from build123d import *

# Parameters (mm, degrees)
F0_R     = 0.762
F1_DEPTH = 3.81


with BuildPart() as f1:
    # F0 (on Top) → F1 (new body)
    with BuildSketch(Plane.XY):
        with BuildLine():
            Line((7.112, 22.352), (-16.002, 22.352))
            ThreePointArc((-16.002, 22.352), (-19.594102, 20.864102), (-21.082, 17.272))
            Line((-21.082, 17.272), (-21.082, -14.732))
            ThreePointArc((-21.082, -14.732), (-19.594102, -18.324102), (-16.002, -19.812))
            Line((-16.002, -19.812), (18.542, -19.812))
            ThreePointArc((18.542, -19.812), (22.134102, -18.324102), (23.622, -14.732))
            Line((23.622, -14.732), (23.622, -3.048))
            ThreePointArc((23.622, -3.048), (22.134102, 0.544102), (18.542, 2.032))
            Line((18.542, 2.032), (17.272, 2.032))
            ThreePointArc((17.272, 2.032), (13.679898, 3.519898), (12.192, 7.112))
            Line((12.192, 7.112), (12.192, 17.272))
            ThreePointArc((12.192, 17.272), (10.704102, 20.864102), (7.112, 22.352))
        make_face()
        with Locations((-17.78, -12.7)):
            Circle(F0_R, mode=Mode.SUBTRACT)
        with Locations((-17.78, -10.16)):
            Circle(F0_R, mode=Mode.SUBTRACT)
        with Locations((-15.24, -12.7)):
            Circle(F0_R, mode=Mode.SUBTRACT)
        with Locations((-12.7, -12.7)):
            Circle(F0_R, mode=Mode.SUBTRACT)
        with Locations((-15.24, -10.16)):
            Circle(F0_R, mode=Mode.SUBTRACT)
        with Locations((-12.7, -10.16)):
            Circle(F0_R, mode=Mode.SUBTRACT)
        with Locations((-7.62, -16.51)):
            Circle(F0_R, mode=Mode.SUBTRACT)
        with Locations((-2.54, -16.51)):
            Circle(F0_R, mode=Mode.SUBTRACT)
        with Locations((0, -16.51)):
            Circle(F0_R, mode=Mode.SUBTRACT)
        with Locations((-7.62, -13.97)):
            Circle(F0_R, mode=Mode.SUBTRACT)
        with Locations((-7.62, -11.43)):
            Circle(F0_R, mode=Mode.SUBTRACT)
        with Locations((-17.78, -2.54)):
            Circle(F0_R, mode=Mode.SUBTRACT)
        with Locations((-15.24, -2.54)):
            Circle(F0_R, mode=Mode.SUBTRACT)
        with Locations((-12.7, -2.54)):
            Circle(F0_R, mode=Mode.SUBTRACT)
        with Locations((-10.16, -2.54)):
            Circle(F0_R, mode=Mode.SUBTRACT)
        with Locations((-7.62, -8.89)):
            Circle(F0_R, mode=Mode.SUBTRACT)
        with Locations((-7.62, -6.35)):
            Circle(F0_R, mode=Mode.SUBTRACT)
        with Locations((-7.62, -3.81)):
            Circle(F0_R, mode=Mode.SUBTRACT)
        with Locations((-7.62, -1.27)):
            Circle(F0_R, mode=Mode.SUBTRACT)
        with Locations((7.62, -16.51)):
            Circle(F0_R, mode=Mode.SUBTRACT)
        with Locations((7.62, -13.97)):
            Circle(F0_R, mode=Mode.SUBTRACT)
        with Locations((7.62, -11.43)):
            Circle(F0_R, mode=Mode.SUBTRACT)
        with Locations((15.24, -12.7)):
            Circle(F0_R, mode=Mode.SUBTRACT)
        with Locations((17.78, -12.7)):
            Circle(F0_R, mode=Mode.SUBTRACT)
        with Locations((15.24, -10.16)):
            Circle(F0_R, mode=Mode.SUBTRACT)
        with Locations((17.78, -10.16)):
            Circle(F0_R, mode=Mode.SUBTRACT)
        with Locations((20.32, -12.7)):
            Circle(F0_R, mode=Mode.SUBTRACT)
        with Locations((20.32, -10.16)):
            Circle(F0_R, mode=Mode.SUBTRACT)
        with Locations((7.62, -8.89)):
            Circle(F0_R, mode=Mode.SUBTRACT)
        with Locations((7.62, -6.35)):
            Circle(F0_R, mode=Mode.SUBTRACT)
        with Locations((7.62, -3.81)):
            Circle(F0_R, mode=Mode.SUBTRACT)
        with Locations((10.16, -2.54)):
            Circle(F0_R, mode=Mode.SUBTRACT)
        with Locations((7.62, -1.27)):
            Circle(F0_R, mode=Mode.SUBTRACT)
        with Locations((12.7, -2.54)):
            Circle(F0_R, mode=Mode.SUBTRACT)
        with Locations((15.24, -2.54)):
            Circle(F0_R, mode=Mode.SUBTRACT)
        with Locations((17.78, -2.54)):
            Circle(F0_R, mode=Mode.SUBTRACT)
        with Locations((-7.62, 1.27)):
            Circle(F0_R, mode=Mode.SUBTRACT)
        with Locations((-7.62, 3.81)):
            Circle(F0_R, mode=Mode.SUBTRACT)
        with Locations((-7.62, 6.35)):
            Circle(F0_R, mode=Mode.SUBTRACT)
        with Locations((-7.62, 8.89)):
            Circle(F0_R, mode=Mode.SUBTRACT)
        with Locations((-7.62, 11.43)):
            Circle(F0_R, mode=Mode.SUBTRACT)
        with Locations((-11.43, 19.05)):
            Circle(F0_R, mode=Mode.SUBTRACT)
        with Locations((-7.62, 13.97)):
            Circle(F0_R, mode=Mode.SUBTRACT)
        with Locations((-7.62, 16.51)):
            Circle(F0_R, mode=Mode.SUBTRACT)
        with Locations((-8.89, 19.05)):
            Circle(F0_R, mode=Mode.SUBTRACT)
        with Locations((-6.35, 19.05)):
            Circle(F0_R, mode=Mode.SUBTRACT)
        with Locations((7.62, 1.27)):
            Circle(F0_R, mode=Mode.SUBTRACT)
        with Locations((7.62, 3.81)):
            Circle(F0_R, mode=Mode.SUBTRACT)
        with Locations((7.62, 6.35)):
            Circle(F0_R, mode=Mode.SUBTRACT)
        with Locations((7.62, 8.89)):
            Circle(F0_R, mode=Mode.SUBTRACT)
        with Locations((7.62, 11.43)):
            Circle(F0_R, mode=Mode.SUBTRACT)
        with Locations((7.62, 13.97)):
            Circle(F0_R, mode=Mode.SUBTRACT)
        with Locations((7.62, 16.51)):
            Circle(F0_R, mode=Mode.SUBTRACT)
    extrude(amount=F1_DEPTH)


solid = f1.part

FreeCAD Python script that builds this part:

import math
import FreeCAD as App
import Part
import Sketcher
Q = App.Units.Quantity

doc = App.newDocument("Part")
body = doc.addObject("PartDesign::Body", "Body")

# Sketch on XY plane
sketch1 = body.newObject("Sketcher::SketchObject", "Sketch")
sketch1.AttachmentSupport = (doc.getObject("XY_Plane"), [""])
sketch1.MapMode = "FlatFace"
sketch1.addGeometry([
    Part.LineSegment(App.Vector(7.1, 22.4, 0), App.Vector(-16, 22.4, 0)),  # 0
    Part.ArcOfCircle(Part.Circle(App.Vector(-16, 17.3, 0), App.Vector(0, 0, 1), 5.1), math.radians(90), math.radians(180)),  # 1
    Part.LineSegment(App.Vector(-21.1, 17.3, 0), App.Vector(-21.1, -14.7, 0)),  # 2
    Part.ArcOfCircle(Part.Circle(App.Vector(-16, -14.7, 0), App.Vector(0, 0, 1), 5.1), math.radians(-180), math.radians(-90)),  # 3
    Part.LineSegment(App.Vector(-16, -19.8, 0), App.Vector(18.5, -19.8, 0)),  # 4
    Part.ArcOfCircle(Part.Circle(App.Vector(18.5, -14.7, 0), App.Vector(0, 0, 1), 5.1), math.radians(-90), math.radians(0)),  # 5
    Part.LineSegment(App.Vector(23.6, -14.7, 0), App.Vector(23.6, -3, 0)),  # 6
    Part.ArcOfCircle(Part.Circle(App.Vector(18.5, -3, 0), App.Vector(0, 0, 1), 5.1), math.radians(0), math.radians(90)),  # 7
    Part.LineSegment(App.Vector(18.5, 2, 0), App.Vector(17.3, 2, 0)),  # 8
    Part.ArcOfCircle(Part.Circle(App.Vector(17.3, 7.1, 0), App.Vector(0, 0, 1), 5.1), math.radians(-180), math.radians(-90)),  # 9
    Part.LineSegment(App.Vector(12.2, 7.1, 0), App.Vector(12.2, 17.3, 0)),  # 10
    Part.ArcOfCircle(Part.Circle(App.Vector(7.1, 17.3, 0), App.Vector(0, 0, 1), 5.1), math.radians(0), math.radians(90)),  # 11
    Part.Circle(App.Vector(-17.8, -12.7, 0), App.Vector(0, 0, 1), 0.8),  # 12
    Part.Circle(App.Vector(-15.2, -12.7, 0), App.Vector(0, 0, 1), 0.8),  # 13
    Part.Circle(App.Vector(-12.7, -12.7, 0), App.Vector(0, 0, 1), 0.8),  # 14
    Part.Circle(App.Vector(-17.8, -10.2, 0), App.Vector(0, 0, 1), 0.8),  # 15
    Part.Circle(App.Vector(-15.2, -10.2, 0), App.Vector(0, 0, 1), 0.8),  # 16
    Part.Circle(App.Vector(-12.7, -10.2, 0), App.Vector(0, 0, 1), 0.8),  # 17
    Part.Circle(App.Vector(-7.6, -16.5, 0), App.Vector(0, 0, 1), 0.8),  # 18
    Part.Circle(App.Vector(-7.6, -14, 0), App.Vector(0, 0, 1), 0.8),  # 19
    Part.Circle(App.Vector(-2.5, -16.5, 0), App.Vector(0, 0, 1), 0.8),  # 20
    Part.Circle(App.Vector(0, -16.5, 0), App.Vector(0, 0, 1), 0.8),  # 21
    Part.Circle(App.Vector(-7.6, -11.4, 0), App.Vector(0, 0, 1), 0.8),  # 22
    Part.Circle(App.Vector(-7.6, -8.9, 0), App.Vector(0, 0, 1), 0.8),  # 23
    Part.Circle(App.Vector(-17.8, -2.5, 0), App.Vector(0, 0, 1), 0.8),  # 24
    Part.Circle(App.Vector(-15.2, -2.5, 0), App.Vector(0, 0, 1), 0.8),  # 25
    Part.Circle(App.Vector(-12.7, -2.5, 0), App.Vector(0, 0, 1), 0.8),  # 26
    Part.Circle(App.Vector(-10.2, -2.5, 0), App.Vector(0, 0, 1), 0.8),  # 27
    Part.Circle(App.Vector(-7.6, -6.3, 0), App.Vector(0, 0, 1), 0.8),  # 28
    Part.Circle(App.Vector(-7.6, -3.8, 0), App.Vector(0, 0, 1), 0.8),  # 29
    Part.Circle(App.Vector(-7.6, -1.3, 0), App.Vector(0, 0, 1), 0.8),  # 30
    Part.Circle(App.Vector(7.6, -16.5, 0), App.Vector(0, 0, 1), 0.8),  # 31
    Part.Circle(App.Vector(7.6, -14, 0), App.Vector(0, 0, 1), 0.8),  # 32
    Part.Circle(App.Vector(7.6, -11.4, 0), App.Vector(0, 0, 1), 0.8),  # 33
    Part.Circle(App.Vector(7.6, -8.9, 0), App.Vector(0, 0, 1), 0.8),  # 34
    Part.Circle(App.Vector(15.2, -12.7, 0), App.Vector(0, 0, 1), 0.8),  # 35
    Part.Circle(App.Vector(17.8, -12.7, 0), App.Vector(0, 0, 1), 0.8),  # 36
    Part.Circle(App.Vector(20.3, -12.7, 0), App.Vector(0, 0, 1), 0.8),  # 37
    Part.Circle(App.Vector(15.2, -10.2, 0), App.Vector(0, 0, 1), 0.8),  # 38
    Part.Circle(App.Vector(17.8, -10.2, 0), App.Vector(0, 0, 1), 0.8),  # 39
    Part.Circle(App.Vector(20.3, -10.2, 0), App.Vector(0, 0, 1), 0.8),  # 40
    Part.Circle(App.Vector(7.6, -6.3, 0), App.Vector(0, 0, 1), 0.8),  # 41
    Part.Circle(App.Vector(7.6, -3.8, 0), App.Vector(0, 0, 1), 0.8),  # 42
    Part.Circle(App.Vector(7.6, -1.3, 0), App.Vector(0, 0, 1), 0.8),  # 43
    Part.Circle(App.Vector(10.2, -2.5, 0), App.Vector(0, 0, 1), 0.8),  # 44
    Part.Circle(App.Vector(12.7, -2.5, 0), App.Vector(0, 0, 1), 0.8),  # 45
    Part.Circle(App.Vector(15.2, -2.5, 0), App.Vector(0, 0, 1), 0.8),  # 46
    Part.Circle(App.Vector(17.8, -2.5, 0), App.Vector(0, 0, 1), 0.8),  # 47
    Part.Circle(App.Vector(-7.6, 1.3, 0), App.Vector(0, 0, 1), 0.8),  # 48
    Part.Circle(App.Vector(-7.6, 3.8, 0), App.Vector(0, 0, 1), 0.8),  # 49
    Part.Circle(App.Vector(-7.6, 6.3, 0), App.Vector(0, 0, 1), 0.8),  # 50
    Part.Circle(App.Vector(-7.6, 8.9, 0), App.Vector(0, 0, 1), 0.8),  # 51
    Part.Circle(App.Vector(-11.4, 19.1, 0), App.Vector(0, 0, 1), 0.8),  # 52
    Part.Circle(App.Vector(-8.9, 19.1, 0), App.Vector(0, 0, 1), 0.8),  # 53
    Part.Circle(App.Vector(-7.6, 11.4, 0), App.Vector(0, 0, 1), 0.8),  # 54
    Part.Circle(App.Vector(-7.6, 14, 0), App.Vector(0, 0, 1), 0.8),  # 55
    Part.Circle(App.Vector(-7.6, 16.5, 0), App.Vector(0, 0, 1), 0.8),  # 56
    Part.Circle(App.Vector(-6.3, 19.1, 0), App.Vector(0, 0, 1), 0.8),  # 57
    Part.Circle(App.Vector(7.6, 1.3, 0), App.Vector(0, 0, 1), 0.8),  # 58
    Part.Circle(App.Vector(7.6, 3.8, 0), App.Vector(0, 0, 1), 0.8),  # 59
    Part.Circle(App.Vector(7.6, 6.3, 0), App.Vector(0, 0, 1), 0.8),  # 60
    Part.Circle(App.Vector(7.6, 8.9, 0), App.Vector(0, 0, 1), 0.8),  # 61
    Part.Circle(App.Vector(7.6, 11.4, 0), App.Vector(0, 0, 1), 0.8),  # 62
    Part.Circle(App.Vector(7.6, 14, 0), App.Vector(0, 0, 1), 0.8),  # 63
    Part.Circle(App.Vector(7.6, 16.5, 0), App.Vector(0, 0, 1), 0.8),  # 64
], False)
sketch1.addConstraint([
    Sketcher.Constraint("Tangent", 0, 2, 1, 1),
    Sketcher.Constraint("Tangent", 1, 2, 2, 1),
    Sketcher.Constraint("Tangent", 2, 2, 3, 1),
    Sketcher.Constraint("Tangent", 3, 2, 4, 1),
    Sketcher.Constraint("Tangent", 4, 2, 5, 1),
    Sketcher.Constraint("Tangent", 5, 2, 6, 1),
    Sketcher.Constraint("Tangent", 6, 2, 7, 1),
    Sketcher.Constraint("Tangent", 7, 2, 8, 1),
    Sketcher.Constraint("Tangent", 8, 2, 9, 2),
    Sketcher.Constraint("Tangent", 9, 1, 10, 1),
    Sketcher.Constraint("Tangent", 10, 2, 11, 1),
    Sketcher.Constraint("Tangent", 11, 2, 0, 1),
    Sketcher.Constraint("Horizontal", 0),
    Sketcher.Constraint("Vertical", 2),
    Sketcher.Constraint("Horizontal", 4),
    Sketcher.Constraint("Vertical", 6),
    Sketcher.Constraint("Horizontal", 8),
    Sketcher.Constraint("Vertical", 10),
    Sketcher.Constraint("Equal", 1, 3),
    Sketcher.Constraint("Equal", 3, 5),
    Sketcher.Constraint("Equal", 5, 7),
    Sketcher.Constraint("Equal", 7, 9),
    Sketcher.Constraint("Equal", 9, 11),
    Sketcher.Constraint("Equal", 12, 13),
    Sketcher.Constraint("Equal", 13, 14),
    Sketcher.Constraint("Equal", 14, 15),
    Sketcher.Constraint("Equal", 15, 16),
    Sketcher.Constraint("Equal", 16, 17),
    Sketcher.Constraint("Equal", 17, 18),
    Sketcher.Constraint("Equal", 18, 19),
    Sketcher.Constraint("Equal", 19, 20),
    Sketcher.Constraint("Equal", 20, 21),
    Sketcher.Constraint("Equal", 21, 22),
    Sketcher.Constraint("Equal", 22, 23),
    Sketcher.Constraint("Equal", 23, 24),
    Sketcher.Constraint("Equal", 24, 25),
    Sketcher.Constraint("Equal", 25, 26),
    Sketcher.Constraint("Equal", 26, 27),
    Sketcher.Constraint("Equal", 27, 28),
    Sketcher.Constraint("Equal", 28, 29),
    Sketcher.Constraint("Equal", 29, 30),
    Sketcher.Constraint("Equal", 30, 31),
    Sketcher.Constraint("Equal", 31, 32),
    Sketcher.Constraint("Equal", 32, 33),
    Sketcher.Constraint("Equal", 33, 34),
    Sketcher.Constraint("Equal", 34, 35),
    Sketcher.Constraint("Equal", 35, 36),
    Sketcher.Constraint("Equal", 36, 37),
    Sketcher.Constraint("Equal", 37, 38),
    Sketcher.Constraint("Equal", 38, 39),
    Sketcher.Constraint("Equal", 39, 40),
    Sketcher.Constraint("Equal", 40, 41),
    Sketcher.Constraint("Equal", 41, 42),
    Sketcher.Constraint("Equal", 42, 43),
    Sketcher.Constraint("Equal", 43, 44),
    Sketcher.Constraint("Equal", 44, 45),
    Sketcher.Constraint("Equal", 45, 46),
    Sketcher.Constraint("Equal", 46, 47),
    Sketcher.Constraint("Equal", 47, 48),
    Sketcher.Constraint("Equal", 48, 49),
    Sketcher.Constraint("Equal", 49, 50),
    Sketcher.Constraint("Equal", 50, 51),
    Sketcher.Constraint("Equal", 51, 52),
    Sketcher.Constraint("Equal", 52, 53),
    Sketcher.Constraint("Equal", 53, 54),
    Sketcher.Constraint("Equal", 54, 55),
    Sketcher.Constraint("Equal", 55, 56),
    Sketcher.Constraint("Equal", 56, 57),
    Sketcher.Constraint("Equal", 57, 58),
    Sketcher.Constraint("Equal", 58, 59),
    Sketcher.Constraint("Equal", 59, 60),
    Sketcher.Constraint("Equal", 60, 61),
    Sketcher.Constraint("Equal", 61, 62),
    Sketcher.Constraint("Equal", 62, 63),
    Sketcher.Constraint("Equal", 63, 64),
    Sketcher.Constraint("Symmetric", 43, 3, 48, 3, -1, 1),
    Sketcher.Constraint("Symmetric", 42, 3, 49, 3, -1, 1),
    Sketcher.Constraint("Symmetric", 41, 3, 50, 3, -1, 1),
    Sketcher.Constraint("Symmetric", 34, 3, 51, 3, -1, 1),
    Sketcher.Constraint("Symmetric", 33, 3, 54, 3, -1, 1),
    Sketcher.Constraint("Symmetric", 32, 3, 55, 3, -1, 1),
    Sketcher.Constraint("Symmetric", 31, 3, 56, 3, -1, 1),
    Sketcher.Constraint("Symmetric", 30, 3, 58, 3, -1, 1),
    Sketcher.Constraint("Symmetric", 29, 3, 59, 3, -1, 1),
    Sketcher.Constraint("Symmetric", 28, 3, 60, 3, -1, 1),
    Sketcher.Constraint("Symmetric", 23, 3, 61, 3, -1, 1),
    Sketcher.Constraint("Symmetric", 22, 3, 62, 3, -1, 1),
    Sketcher.Constraint("Symmetric", 19, 3, 63, 3, -1, 1),
    Sketcher.Constraint("Symmetric", 18, 3, 64, 3, -1, 1),
    Sketcher.Constraint("Symmetric", 18, 3, 31, 3, -2),
    Sketcher.Constraint("Symmetric", 19, 3, 32, 3, -2),
    Sketcher.Constraint("Symmetric", 22, 3, 33, 3, -2),
    Sketcher.Constraint("Symmetric", 23, 3, 34, 3, -2),
    Sketcher.Constraint("Symmetric", 13, 3, 35, 3, -2),
    Sketcher.Constraint("Symmetric", 12, 3, 36, 3, -2),
    Sketcher.Constraint("Symmetric", 16, 3, 38, 3, -2),
    Sketcher.Constraint("Symmetric", 15, 3, 39, 3, -2),
    Sketcher.Constraint("Symmetric", 28, 3, 41, 3, -2),
    Sketcher.Constraint("Symmetric", 29, 3, 42, 3, -2),
    Sketcher.Constraint("Symmetric", 30, 3, 43, 3, -2),
    Sketcher.Constraint("Symmetric", 27, 3, 44, 3, -2),
    Sketcher.Constraint("Symmetric", 26, 3, 45, 3, -2),
    Sketcher.Constraint("Symmetric", 25, 3, 46, 3, -2),
    Sketcher.Constraint("Symmetric", 24, 3, 47, 3, -2),
    Sketcher.Constraint("PointOnObject", 21, 3, -2),
    Sketcher.Constraint("Horizontal", 12, 3, 13, 3),
    Sketcher.Constraint("Horizontal", 13, 3, 14, 3),
    Sketcher.Constraint("Horizontal", 15, 3, 16, 3),
    Sketcher.Constraint("Horizontal", 16, 3, 17, 3),
    Sketcher.Constraint("Horizontal", 18, 3, 20, 3),
    Sketcher.Constraint("Horizontal", 20, 3, 21, 3),
    Sketcher.Constraint("Horizontal", 24, 3, 25, 3),
    Sketcher.Constraint("Horizontal", 25, 3, 26, 3),
    Sketcher.Constraint("Horizontal", 26, 3, 27, 3),
    Sketcher.Constraint("Horizontal", 36, 3, 37, 3),
    Sketcher.Constraint("Horizontal", 39, 3, 40, 3),
    Sketcher.Constraint("Horizontal", 52, 3, 53, 3),
    Sketcher.Constraint("Horizontal", 53, 3, 57, 3),
    Sketcher.Constraint("Vertical", 12, 3, 15, 3),
    Sketcher.Constraint("Vertical", 13, 3, 16, 3),
    Sketcher.Constraint("Vertical", 14, 3, 17, 3),
    Sketcher.Constraint("Vertical", 18, 3, 19, 3),
    Sketcher.Constraint("Vertical", 19, 3, 22, 3),
    Sketcher.Constraint("Vertical", 22, 3, 23, 3),
    Sketcher.Constraint("Vertical", 15, 3, 24, 3),
    Sketcher.Constraint("Vertical", 16, 3, 25, 3),
    Sketcher.Constraint("Vertical", 17, 3, 26, 3),
    Sketcher.Constraint("Vertical", 23, 3, 28, 3),
    Sketcher.Constraint("Vertical", 28, 3, 29, 3),
    Sketcher.Constraint("Vertical", 29, 3, 30, 3),
    Sketcher.Constraint("Vertical", 37, 3, 40, 3),
    Sketcher.Constraint("Radius", 1, Q("0.2000001 in")),
    Sketcher.Constraint("Diameter", 12, Q("0.06 in")),
    Sketcher.Constraint("DistanceY", 10, 1, 10, 2, Q("0.4 in")),
    Sketcher.Constraint("DistanceX", 0, 2, 0, 1, Q("0.91 in")),
    Sketcher.Constraint("DistanceX", 4, 1, 4, 2, Q("1.36 in")),
    Sketcher.Constraint("DistanceY", 2, 2, 2, 1, Q("1.26 in")),
    Sketcher.Constraint("DistanceX", 12, 3, -1, 1, Q("0.7 in")),
    Sketcher.Constraint("DistanceY", 12, 3, -1, 1, Q("0.5 in")),
    Sketcher.Constraint("DistanceX", 13, 3, -1, 1, Q("0.6 in")),
    Sketcher.Constraint("DistanceX", 14, 3, -1, 1, Q("0.5 in")),
    Sketcher.Constraint("DistanceY", 15, 3, -1, 1, Q("0.4 in")),
    Sketcher.Constraint("DistanceX", 18, 3, -1, 1, Q("0.3 in")),
    Sketcher.Constraint("DistanceX", 20, 3, -1, 1, Q("0.1 in")),
    Sketcher.Constraint("DistanceY", 24, 3, -1, 1, Q("0.1 in")),
    Sketcher.Constraint("DistanceX", 27, 3, -1, 1, Q("0.4 in")),
    Sketcher.Constraint("DistanceX", -1, 1, 37, 3, Q("0.8 in")),
    Sketcher.Constraint("DistanceX", 1, 3, -1, 1, Q("0.6299999 in")),
    Sketcher.Constraint("DistanceY", -1, 1, 1, 3, Q("0.6799999 in")),
    Sketcher.Constraint("DistanceY", 18, 3, -1, 1, Q("0.65 in")),
    Sketcher.Constraint("DistanceY", 19, 3, -1, 1, Q("0.55 in")),
    Sketcher.Constraint("DistanceY", 22, 3, -1, 1, Q("0.45 in")),
    Sketcher.Constraint("DistanceY", 23, 3, -1, 1, Q("0.35 in")),
    Sketcher.Constraint("DistanceY", 28, 3, -1, 1, Q("0.25 in")),
    Sketcher.Constraint("DistanceY", 29, 3, -1, 1, Q("0.15 in")),
    Sketcher.Constraint("DistanceY", 30, 3, -1, 1, Q("0.05 in")),
    Sketcher.Constraint("DistanceX", 52, 3, -1, 1, Q("0.45 in")),
    Sketcher.Constraint("DistanceY", -1, 1, 52, 3, Q("0.75 in")),
    Sketcher.Constraint("DistanceX", 53, 3, -1, 1, Q("0.35 in")),
    Sketcher.Constraint("DistanceX", 57, 3, -1, 1, Q("0.25 in")),
])
pad1 = body.newObject("PartDesign::Pad", "Pad")
pad1.Profile = sketch1
pad1.Length = Q("0.15 in")

doc.recompute()
